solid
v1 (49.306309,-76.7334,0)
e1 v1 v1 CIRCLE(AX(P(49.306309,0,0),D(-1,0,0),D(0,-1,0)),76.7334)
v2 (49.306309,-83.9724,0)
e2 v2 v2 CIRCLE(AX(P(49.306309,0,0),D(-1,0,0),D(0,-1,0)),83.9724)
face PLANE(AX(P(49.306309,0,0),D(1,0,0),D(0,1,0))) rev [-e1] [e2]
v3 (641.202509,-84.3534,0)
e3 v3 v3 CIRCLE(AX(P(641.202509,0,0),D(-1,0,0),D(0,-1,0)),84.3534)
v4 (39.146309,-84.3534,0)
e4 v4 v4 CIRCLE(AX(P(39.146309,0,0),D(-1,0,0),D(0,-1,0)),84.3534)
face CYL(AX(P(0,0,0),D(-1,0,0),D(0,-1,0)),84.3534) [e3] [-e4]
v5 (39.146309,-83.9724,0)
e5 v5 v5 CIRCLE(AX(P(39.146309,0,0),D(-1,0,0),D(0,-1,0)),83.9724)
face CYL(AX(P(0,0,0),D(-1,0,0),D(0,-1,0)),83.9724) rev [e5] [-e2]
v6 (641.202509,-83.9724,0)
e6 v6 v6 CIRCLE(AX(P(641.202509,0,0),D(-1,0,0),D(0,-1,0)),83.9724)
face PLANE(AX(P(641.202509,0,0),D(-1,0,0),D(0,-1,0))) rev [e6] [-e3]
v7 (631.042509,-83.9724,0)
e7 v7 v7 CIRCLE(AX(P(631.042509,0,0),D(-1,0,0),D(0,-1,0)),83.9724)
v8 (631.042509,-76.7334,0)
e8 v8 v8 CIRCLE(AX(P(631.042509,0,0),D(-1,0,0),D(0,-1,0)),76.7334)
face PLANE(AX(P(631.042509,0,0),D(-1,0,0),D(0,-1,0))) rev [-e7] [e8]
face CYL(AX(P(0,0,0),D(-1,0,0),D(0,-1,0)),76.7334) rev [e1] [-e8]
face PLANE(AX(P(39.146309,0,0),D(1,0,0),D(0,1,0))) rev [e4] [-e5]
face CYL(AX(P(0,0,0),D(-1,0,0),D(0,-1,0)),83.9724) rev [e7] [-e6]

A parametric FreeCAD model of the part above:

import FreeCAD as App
import Part
import Sketcher
from FreeCAD import Vector
Q = App.Units.Quantity


def add_polygon(sketch, points):
    """Adds a closed chain of lines whose ends are joined by coincident constraints."""
    first, n = sketch.GeometryCount, len(points)
    for a, b in zip(points, points[1:] + points[:1]):
        sketch.addGeometry(Part.LineSegment(App.Vector(*a, 0), App.Vector(*b, 0)), False)
    for i in range(n):
        sketch.addConstraint(Sketcher.Constraint("Coincident", first + i, 2, first + (i + 1) % n, 1))

doc = App.newDocument("Part")
body = doc.addObject("PartDesign::Body", "Body")

sketch1 = body.newObject("Sketcher::SketchObject", "Sketch")
sketch1.AttachmentSupport = (doc.getObject("XY_Plane"), [""])
sketch1.MapMode = "FlatFace"
add_polygon(sketch1, [(39.15, 83.97), (49.31, 83.97), (49.31, 76.73), (631.04, 76.73), (631.04, 83.97), (641.2, 83.97), (641.2, 84.35), (39.15, 84.35)])
sketch1.addConstraint([
    Sketcher.Constraint("Horizontal", 0),
    Sketcher.Constraint("Vertical", 1),
    Sketcher.Constraint("Horizontal", 2),
    Sketcher.Constraint("Vertical", 3),
    Sketcher.Constraint("Horizontal", 4),
    Sketcher.Constraint("Vertical", 5),
    Sketcher.Constraint("Horizontal", 6),
    Sketcher.Constraint("Vertical", 7),
    Sketcher.Constraint("Horizontal", 0, 2, 3, 2),
    Sketcher.Constraint("Equal", 0, 4),
    Sketcher.Constraint("DistanceX", 0, 1, 0, 2, Q("0.4 in")),
    Sketcher.Constraint("DistanceY", 2, 2, 5, 2, Q("0.3 in")),
    Sketcher.Constraint("DistanceX", 2, 1, 2, 2, Q("22.903 in")),
    Sketcher.Constraint("DistanceY", 1, 2, 1, 1, Q("0.285 in")),
    Sketcher.Constraint("DistanceY", -1, 1, 0, 2, Q("3.306 in")),
    Sketcher.Constraint("DistanceX", -1, 1, 0, 2, Q("49.306309 mm")),
])
revolution = body.newObject("PartDesign::Revolution", "Revolution")
revolution.Profile = sketch1
revolution.ReferenceAxis = (sketch1, ["H_Axis"])
revolution.Angle = 360

doc.recompute()
